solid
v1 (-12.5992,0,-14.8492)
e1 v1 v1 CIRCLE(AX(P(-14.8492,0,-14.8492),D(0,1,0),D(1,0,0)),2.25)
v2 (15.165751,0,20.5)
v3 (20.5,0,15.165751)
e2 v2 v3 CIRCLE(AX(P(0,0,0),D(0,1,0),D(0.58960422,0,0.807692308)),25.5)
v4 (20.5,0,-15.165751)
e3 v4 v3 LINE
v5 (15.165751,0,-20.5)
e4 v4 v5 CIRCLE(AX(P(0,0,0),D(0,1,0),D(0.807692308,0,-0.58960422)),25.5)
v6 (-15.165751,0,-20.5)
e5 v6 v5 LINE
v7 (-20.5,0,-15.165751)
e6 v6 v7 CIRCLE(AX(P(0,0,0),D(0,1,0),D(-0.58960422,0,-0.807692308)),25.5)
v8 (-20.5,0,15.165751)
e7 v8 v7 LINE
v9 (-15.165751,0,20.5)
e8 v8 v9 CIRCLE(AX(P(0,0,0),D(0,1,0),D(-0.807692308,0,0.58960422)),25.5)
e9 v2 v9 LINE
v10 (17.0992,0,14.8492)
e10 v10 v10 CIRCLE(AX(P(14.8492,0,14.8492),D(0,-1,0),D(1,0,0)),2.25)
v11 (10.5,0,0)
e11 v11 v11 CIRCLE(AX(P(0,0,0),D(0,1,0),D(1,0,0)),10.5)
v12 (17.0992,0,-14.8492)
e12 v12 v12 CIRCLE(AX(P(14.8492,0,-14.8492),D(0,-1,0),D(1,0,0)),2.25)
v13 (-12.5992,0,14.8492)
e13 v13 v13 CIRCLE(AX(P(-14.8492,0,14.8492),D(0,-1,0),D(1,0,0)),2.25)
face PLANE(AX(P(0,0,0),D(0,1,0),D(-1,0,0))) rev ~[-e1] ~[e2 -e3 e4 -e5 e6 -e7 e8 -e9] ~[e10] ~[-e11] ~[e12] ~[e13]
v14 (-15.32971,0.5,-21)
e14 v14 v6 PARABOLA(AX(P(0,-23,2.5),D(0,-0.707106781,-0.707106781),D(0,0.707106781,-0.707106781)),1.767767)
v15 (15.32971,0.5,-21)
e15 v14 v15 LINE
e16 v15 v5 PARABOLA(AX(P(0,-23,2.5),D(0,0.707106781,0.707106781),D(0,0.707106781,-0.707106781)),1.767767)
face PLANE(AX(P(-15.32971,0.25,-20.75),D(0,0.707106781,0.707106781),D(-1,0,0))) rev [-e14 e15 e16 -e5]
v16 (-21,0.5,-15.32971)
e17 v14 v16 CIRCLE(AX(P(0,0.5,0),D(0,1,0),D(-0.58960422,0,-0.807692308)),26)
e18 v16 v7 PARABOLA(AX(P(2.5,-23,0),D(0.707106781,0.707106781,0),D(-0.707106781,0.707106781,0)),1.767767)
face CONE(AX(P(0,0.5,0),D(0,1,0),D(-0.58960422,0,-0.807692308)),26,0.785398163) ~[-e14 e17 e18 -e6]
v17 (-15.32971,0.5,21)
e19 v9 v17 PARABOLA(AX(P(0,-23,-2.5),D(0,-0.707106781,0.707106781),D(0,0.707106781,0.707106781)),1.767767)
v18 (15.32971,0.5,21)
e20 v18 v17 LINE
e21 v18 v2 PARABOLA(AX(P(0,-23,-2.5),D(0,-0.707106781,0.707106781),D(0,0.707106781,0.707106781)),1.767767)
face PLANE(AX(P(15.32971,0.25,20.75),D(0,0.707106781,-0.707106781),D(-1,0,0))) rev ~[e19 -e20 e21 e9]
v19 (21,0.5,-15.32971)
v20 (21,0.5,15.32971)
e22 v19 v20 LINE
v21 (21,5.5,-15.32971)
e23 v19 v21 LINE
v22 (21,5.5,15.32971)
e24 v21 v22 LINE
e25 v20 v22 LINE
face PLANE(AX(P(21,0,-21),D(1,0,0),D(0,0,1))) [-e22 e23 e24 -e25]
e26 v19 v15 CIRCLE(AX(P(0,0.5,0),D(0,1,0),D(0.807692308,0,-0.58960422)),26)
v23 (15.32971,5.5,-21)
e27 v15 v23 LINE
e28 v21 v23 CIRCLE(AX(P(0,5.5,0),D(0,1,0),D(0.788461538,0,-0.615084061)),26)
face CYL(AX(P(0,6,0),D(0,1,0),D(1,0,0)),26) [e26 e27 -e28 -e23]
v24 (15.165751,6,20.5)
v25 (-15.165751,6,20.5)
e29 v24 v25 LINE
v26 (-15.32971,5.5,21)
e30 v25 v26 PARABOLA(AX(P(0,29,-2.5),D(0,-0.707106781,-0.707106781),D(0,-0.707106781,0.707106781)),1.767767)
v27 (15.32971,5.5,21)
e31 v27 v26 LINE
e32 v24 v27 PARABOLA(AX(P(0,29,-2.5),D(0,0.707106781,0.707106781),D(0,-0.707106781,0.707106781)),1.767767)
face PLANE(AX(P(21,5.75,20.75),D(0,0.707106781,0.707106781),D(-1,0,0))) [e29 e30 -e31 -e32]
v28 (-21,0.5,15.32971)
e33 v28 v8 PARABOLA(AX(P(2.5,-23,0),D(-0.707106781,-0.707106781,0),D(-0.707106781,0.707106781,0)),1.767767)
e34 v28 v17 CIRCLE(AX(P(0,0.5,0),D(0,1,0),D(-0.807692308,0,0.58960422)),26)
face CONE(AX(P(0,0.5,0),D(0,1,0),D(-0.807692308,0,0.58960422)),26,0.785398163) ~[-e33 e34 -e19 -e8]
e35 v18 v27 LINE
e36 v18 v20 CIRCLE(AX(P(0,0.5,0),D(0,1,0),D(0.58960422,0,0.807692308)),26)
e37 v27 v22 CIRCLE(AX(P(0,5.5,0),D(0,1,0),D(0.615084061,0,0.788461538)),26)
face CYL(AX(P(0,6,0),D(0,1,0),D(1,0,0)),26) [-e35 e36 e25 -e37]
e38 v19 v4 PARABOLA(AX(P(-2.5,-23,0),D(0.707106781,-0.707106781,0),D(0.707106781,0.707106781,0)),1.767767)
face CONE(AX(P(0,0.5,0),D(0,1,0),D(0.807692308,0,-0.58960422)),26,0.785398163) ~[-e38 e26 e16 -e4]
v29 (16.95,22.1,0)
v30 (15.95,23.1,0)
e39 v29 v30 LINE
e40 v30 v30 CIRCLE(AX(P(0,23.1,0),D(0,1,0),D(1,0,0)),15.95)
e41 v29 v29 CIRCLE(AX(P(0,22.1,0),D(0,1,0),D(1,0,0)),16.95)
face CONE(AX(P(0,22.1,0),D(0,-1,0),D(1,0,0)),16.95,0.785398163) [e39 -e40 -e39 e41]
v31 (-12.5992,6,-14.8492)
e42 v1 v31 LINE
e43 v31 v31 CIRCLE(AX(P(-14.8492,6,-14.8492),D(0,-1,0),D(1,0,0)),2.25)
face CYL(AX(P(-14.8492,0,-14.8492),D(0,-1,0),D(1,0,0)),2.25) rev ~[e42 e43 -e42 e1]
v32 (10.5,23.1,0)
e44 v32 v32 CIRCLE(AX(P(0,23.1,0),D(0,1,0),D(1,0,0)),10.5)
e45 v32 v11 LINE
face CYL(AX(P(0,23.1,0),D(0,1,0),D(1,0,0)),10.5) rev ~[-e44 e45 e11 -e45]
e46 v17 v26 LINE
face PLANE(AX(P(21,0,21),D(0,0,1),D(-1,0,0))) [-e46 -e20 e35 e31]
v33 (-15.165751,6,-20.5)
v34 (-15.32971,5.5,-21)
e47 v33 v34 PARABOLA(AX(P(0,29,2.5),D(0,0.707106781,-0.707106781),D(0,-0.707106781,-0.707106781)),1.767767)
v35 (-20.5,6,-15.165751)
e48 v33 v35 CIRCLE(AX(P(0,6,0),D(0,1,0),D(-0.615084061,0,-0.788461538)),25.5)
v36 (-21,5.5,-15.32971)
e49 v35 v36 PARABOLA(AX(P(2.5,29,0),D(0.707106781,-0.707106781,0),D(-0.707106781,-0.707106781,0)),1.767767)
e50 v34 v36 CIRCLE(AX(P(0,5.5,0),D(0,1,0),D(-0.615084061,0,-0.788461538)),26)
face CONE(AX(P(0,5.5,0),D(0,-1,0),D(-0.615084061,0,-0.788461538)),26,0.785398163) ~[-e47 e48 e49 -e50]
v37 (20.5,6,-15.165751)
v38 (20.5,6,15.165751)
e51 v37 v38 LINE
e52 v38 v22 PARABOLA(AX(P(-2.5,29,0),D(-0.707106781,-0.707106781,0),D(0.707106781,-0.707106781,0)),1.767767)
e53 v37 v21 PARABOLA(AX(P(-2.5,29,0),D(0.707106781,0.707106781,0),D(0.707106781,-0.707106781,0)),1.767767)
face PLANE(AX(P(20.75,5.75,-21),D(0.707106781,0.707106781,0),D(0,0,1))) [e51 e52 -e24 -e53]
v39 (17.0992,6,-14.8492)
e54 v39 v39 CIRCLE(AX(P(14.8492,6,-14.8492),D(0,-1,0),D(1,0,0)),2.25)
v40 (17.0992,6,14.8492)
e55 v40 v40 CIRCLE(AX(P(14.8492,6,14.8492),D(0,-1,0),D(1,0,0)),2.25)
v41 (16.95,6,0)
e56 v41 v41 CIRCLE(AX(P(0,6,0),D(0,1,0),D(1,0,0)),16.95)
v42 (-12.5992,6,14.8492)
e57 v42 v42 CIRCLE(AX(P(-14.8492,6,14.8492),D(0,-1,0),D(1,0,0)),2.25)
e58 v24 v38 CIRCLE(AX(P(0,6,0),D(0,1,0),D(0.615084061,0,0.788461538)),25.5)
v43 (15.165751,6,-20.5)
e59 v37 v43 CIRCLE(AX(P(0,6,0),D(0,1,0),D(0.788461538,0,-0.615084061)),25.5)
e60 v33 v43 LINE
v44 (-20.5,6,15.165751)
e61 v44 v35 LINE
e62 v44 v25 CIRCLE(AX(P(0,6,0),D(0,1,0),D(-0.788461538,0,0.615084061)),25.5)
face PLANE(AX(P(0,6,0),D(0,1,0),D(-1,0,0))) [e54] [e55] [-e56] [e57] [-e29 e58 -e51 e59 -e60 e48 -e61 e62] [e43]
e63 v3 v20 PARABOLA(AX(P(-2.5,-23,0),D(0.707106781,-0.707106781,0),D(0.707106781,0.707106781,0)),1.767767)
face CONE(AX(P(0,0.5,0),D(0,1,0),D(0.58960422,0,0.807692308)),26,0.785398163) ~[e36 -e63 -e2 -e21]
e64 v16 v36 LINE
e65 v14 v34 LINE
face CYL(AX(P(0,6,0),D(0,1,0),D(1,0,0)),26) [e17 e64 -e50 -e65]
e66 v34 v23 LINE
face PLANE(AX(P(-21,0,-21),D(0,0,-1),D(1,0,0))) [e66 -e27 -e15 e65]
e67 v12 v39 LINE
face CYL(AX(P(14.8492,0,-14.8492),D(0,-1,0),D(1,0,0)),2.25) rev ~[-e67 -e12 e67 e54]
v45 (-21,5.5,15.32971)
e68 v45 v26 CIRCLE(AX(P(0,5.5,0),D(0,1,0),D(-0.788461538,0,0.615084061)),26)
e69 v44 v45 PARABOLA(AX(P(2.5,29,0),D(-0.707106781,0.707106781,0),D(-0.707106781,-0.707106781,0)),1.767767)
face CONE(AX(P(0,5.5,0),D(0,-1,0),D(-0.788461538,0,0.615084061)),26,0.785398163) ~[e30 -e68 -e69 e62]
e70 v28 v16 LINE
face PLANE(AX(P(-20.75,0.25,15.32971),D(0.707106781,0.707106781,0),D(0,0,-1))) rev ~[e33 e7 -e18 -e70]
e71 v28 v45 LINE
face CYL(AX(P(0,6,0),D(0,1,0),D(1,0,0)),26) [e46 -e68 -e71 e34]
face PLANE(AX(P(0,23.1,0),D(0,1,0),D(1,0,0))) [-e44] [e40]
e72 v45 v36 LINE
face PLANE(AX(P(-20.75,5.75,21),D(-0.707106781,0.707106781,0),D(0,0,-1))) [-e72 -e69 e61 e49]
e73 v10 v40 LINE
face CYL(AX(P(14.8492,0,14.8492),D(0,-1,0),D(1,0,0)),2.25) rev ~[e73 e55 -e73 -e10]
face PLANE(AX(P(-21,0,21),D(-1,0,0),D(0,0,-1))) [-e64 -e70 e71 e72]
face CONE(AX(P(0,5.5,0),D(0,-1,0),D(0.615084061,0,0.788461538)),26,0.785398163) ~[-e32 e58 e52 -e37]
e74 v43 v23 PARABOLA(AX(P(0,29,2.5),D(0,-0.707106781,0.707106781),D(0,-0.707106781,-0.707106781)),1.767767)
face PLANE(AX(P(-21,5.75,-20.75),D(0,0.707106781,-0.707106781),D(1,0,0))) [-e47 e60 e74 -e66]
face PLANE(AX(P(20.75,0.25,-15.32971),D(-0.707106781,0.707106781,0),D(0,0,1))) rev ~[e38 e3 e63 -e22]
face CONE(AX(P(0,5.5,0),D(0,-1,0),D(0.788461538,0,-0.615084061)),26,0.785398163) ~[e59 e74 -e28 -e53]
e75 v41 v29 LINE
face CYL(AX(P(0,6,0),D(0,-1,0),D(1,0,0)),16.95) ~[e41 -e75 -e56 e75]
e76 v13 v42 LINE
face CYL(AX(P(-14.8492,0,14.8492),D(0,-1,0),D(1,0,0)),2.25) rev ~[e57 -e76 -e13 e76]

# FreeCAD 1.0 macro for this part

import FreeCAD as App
import Part
import Sketcher

V = App.Vector
Q = App.Units.Quantity


def edges_at(feature, points):
    """Names of the edges that pass closest to the given points."""
    edges = feature.Shape.Edges
    near = lambda p: min(range(len(edges)), key=lambda i: edges[i].distToShape(Part.Vertex(*p))[0])
    return sorted({f"Edge{near(p) + 1}" for p in points})

doc = App.newDocument("Part")
params = doc.addObject("Spreadsheet::Sheet", "Params")
for row, (alias, value) in enumerate([
    ("sketch1_width", "42 mm"),
    ("pad1_length", "6 mm"),
    ("sketch2_diameter", "33.9 mm"),
    ("pad2_length", "17.1 mm"),
    ("sketch3_diameter", "21 mm"),
    ("pocket1_length", "76.65 mm"),
    ("sketch4_diameter", "4.5 mm"),
    ("pocket2_length", "88.15 mm"),
    ("chamfer_size", "1 mm"),
    ("chamfer2_size", "0.5 mm"),
    ("sketch5_diameter", "52 mm"),
    ("pocket3_length", "219.6 mm"),
    ("chamfer3_size", "0.5 mm"),
], start=1):
    params.set(f"A{row}", alias)
    params.set(f"B{row}", "=" + value)
    params.setAlias(f"B{row}", alias)

body = doc.addObject("PartDesign::Body", "Body")

# Sketch on XZ plane
sketch1 = body.newObject("Sketcher::SketchObject", "Sketch")
sketch1.AttachmentSupport = (doc.getObject("XZ_Plane"), [""])
sketch1.MapMode = "FlatFace"
sketch1.addGeometry(Part.LineSegment(V(21, -21, 0), V(-21, -21, 0)), False)
sketch1.addGeometry(Part.LineSegment(V(-21, -21, 0), V(-21, 21, 0)), False)
sketch1.addGeometry(Part.LineSegment(V(-21, 21, 0), V(21, 21, 0)), False)
sketch1.addGeometry(Part.LineSegment(V(21, 21, 0), V(21, -21, 0)), False)
sketch1.addConstraint(Sketcher.Constraint("Coincident", 0, 2, 1, 1))
sketch1.addConstraint(Sketcher.Constraint("Coincident", 1, 2, 2, 1))
sketch1.addConstraint(Sketcher.Constraint("Coincident", 2, 2, 3, 1))
sketch1.addConstraint(Sketcher.Constraint("Coincident", 3, 2, 0, 1))
sketch1.addConstraint(Sketcher.Constraint("Horizontal", 0))
sketch1.addConstraint(Sketcher.Constraint("Vertical", 1))
sketch1.addConstraint(Sketcher.Constraint("Horizontal", 2))
sketch1.addConstraint(Sketcher.Constraint("Vertical", 3))
sketch1.addConstraint(Sketcher.Constraint("Symmetric", 0, 2, 2, 2, -1, 1))
sketch1.addConstraint(Sketcher.Constraint("Equal", 2, 1))
sketch1.addConstraint(Sketcher.Constraint("DistanceX", 0, 2, 0, 1, Q("42 mm")))
sketch1.setExpression("Constraints[10]", "Params.sketch1_width")
pad1 = body.newObject("PartDesign::Pad", "Pad")
pad1.Profile = sketch1
pad1.setExpression("Length", "Params.pad1_length")
pad1.Reversed = True

# Sketch on XZ plane
sketch2 = body.newObject("Sketcher::SketchObject", "Sketch001")
sketch2.AttachmentSupport = (doc.getObject("XZ_Plane"), [""])
sketch2.MapMode = "FlatFace"
sketch2.AttachmentOffset = App.Placement(V(0, 0, -6), App.Rotation())
sketch2.addGeometry(Part.Circle(V(0, 0, 0), V(0, 0, 1), 17), False)
sketch2.addConstraint(Sketcher.Constraint("Coincident", 0, 3, -1, 1))
sketch2.addConstraint(Sketcher.Constraint("Diameter", 0, Q("33.9 mm")))
sketch2.setExpression("Constraints[1]", "Params.sketch2_diameter")
pad2 = body.newObject("PartDesign::Pad", "Pad001")
pad2.Profile = sketch2
pad2.setExpression("Length", "Params.pad2_length")
pad2.Reversed = True

# Sketch on XZ plane
sketch3 = body.newObject("Sketcher::SketchObject", "Sketch002")
sketch3.AttachmentSupport = (doc.getObject("XZ_Plane"), [""])
sketch3.MapMode = "FlatFace"
sketch3.AttachmentOffset = App.Placement(V(0, 0, -23.1), App.Rotation())
sketch3.addGeometry(Part.Circle(V(0, 0, 0), V(0, 0, 1), 10), False)
sketch3.addConstraint(Sketcher.Constraint("Coincident", 0, 3, -1, 1))
sketch3.addConstraint(Sketcher.Constraint("Diameter", 0, Q("21 mm")))
sketch3.setExpression("Constraints[1]", "Params.sketch3_diameter")
pocket1 = body.newObject("PartDesign::Pocket", "Pocket")
pocket1.Profile = sketch3
pocket1.setExpression("Length", "Params.pocket1_length")
pocket1.Reversed = True

# Sketch on XZ plane
sketch4 = body.newObject("Sketcher::SketchObject", "Sketch003")
sketch4.AttachmentSupport = (doc.getObject("XZ_Plane"), [""])
sketch4.MapMode = "FlatFace"
sketch4.addGeometry(Part.Circle(V(-14.8, -14.8, 0), V(0, 0, 1), 2.2), False)
sketch4.addGeometry(Part.Circle(V(14.8, -14.8, 0), V(0, 0, 1), 2.2), False)
sketch4.addGeometry(Part.Circle(V(14.8, 14.8, 0), V(0, 0, 1), 2.2), False)
sketch4.addGeometry(Part.Circle(V(-14.8, 14.8, 0), V(0, 0, 1), 2.2), False)
sketch4.addConstraint(Sketcher.Constraint("Equal", 0, 1))
sketch4.addConstraint(Sketcher.Constraint("Equal", 1, 2))
sketch4.addConstraint(Sketcher.Constraint("Equal", 2, 3))
sketch4.addConstraint(Sketcher.Constraint("Symmetric", 0, 3, 2, 3, -1, 1))
sketch4.addConstraint(Sketcher.Constraint("Symmetric", 1, 3, 3, 3, -1, 1))
sketch4.addConstraint(Sketcher.Constraint("Symmetric", 0, 3, 1, 3, -2))
sketch4.addConstraint(Sketcher.Constraint("Diameter", 0, Q("4.5 mm")))
sketch4.addConstraint(Sketcher.Constraint("DistanceX", 0, 3, -1, 1, Q("14.8492 mm")))
sketch4.addConstraint(Sketcher.Constraint("DistanceY", 0, 3, -1, 1, Q("14.8492 mm")))
sketch4.setExpression("Constraints[6]", "Params.sketch4_diameter")
pocket2 = body.newObject("PartDesign::Pocket", "Pocket001")
pocket2.Profile = sketch4
pocket2.setExpression("Length", "Params.pocket2_length")
doc.recompute()

chamfer = body.newObject("PartDesign::Chamfer", "Chamfer")
chamfer.Base = (pocket2, edges_at(pocket2, [(-16.95, 23.1, 0)]))
chamfer.setExpression("Size", "Params.chamfer_size")
doc.recompute()

chamfer2 = body.newObject("PartDesign::Chamfer", "Chamfer001")
chamfer2.Base = (chamfer, edges_at(chamfer, [
    (0, 6, -21),
    (-21, 6, 0),
    (0, 6, 21),
    (21, 6, 0),
]))
chamfer2.setExpression("Size", "Params.chamfer2_size")

# Sketch on XZ plane
sketch5 = body.newObject("Sketcher::SketchObject", "Sketch004")
sketch5.AttachmentSupport = (doc.getObject("XZ_Plane"), [""])
sketch5.MapMode = "FlatFace"
sketch5.AttachmentOffset = App.Placement(V(0, 0, -6), App.Rotation())
sketch5.addGeometry(Part.Circle(V(0, 0, 0), V(0, 0, 1), 32), False)
sketch5.addGeometry(Part.Circle(V(0, 0, 0), V(0, 0, 1), 26), False)
sketch5.addConstraint(Sketcher.Constraint("Coincident", 0, 3, -1, 1))
sketch5.addConstraint(Sketcher.Constraint("Coincident", 1, 3, -1, 1))
sketch5.addConstraint(Sketcher.Constraint("Diameter", 1, Q("52 mm")))
sketch5.addConstraint(Sketcher.Constraint("Diameter", 0, Q("63.5522 mm")))
sketch5.setExpression("Constraints[2]", "Params.sketch5_diameter")
pocket3 = body.newObject("PartDesign::Pocket", "Pocket002")
pocket3.Profile = sketch5
pocket3.setExpression("Length", "Params.pocket3_length")
pocket3.Reversed = True
doc.recompute()

chamfer3 = body.newObject("PartDesign::Chamfer", "Chamfer002")
chamfer3.Base = (pocket3, edges_at(pocket3, [
    (-18.385, 6, -18.385),
    (18.385, 6, -18.385),
    (18.385, 6, 18.385),
    (-18.385, 6, 18.385),
    (-18.385, 0, -18.385),
    (0, 0, -21),
    (18.385, 0, -18.385),
    (21, 0, 0),
    (18.385, 0, 18.385),
    (0, 0, 21),
    (-18.385, 0, 18.385),
    (-21, 0, 0),
]))
chamfer3.setExpression("Size", "Params.chamfer3_size")

doc.recompute()
